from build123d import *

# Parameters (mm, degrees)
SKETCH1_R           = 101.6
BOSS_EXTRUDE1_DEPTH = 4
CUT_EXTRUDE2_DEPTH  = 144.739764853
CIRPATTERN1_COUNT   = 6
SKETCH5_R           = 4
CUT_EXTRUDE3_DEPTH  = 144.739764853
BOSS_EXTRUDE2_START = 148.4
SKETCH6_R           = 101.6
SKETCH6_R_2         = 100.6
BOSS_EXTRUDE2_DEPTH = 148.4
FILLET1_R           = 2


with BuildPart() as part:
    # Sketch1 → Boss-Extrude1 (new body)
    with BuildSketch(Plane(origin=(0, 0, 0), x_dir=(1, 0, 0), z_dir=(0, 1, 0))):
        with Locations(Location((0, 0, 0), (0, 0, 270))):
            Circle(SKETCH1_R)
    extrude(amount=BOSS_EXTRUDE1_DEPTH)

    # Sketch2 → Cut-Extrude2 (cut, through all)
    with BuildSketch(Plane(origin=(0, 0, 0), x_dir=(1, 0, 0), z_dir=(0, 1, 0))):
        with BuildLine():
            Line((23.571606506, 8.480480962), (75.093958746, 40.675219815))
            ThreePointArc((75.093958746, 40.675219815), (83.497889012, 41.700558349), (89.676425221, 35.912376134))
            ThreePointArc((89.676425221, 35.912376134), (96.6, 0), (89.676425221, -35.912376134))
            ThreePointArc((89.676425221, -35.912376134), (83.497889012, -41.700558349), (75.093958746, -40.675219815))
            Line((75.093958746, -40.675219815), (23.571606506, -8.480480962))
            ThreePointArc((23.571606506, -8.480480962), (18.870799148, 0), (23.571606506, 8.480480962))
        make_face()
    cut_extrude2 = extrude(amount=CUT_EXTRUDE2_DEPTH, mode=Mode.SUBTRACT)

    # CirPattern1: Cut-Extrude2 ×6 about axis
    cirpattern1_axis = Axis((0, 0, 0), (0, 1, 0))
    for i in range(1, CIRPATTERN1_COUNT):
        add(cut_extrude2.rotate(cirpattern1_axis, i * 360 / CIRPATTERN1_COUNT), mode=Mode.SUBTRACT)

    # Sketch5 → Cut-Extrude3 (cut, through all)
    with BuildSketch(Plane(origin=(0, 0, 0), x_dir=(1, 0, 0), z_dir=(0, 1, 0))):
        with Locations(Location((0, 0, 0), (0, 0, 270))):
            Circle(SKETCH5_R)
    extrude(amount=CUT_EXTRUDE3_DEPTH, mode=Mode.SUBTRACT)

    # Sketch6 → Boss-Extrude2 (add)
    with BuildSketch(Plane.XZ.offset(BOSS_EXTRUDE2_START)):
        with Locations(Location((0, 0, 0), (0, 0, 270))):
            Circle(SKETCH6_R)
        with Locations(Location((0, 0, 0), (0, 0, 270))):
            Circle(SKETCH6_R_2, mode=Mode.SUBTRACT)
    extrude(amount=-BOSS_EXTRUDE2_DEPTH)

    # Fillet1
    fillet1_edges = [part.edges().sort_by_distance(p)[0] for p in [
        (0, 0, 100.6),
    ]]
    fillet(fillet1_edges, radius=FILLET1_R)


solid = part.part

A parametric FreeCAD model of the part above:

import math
import FreeCAD as App
import Part
import Sketcher
Q = App.Units.Quantity


def edges_at(feature, points):
    """Names of the edges that pass closest to the given points."""
    edges = feature.Shape.Edges
    near = lambda p: min(range(len(edges)), key=lambda i: edges[i].distToShape(Part.Vertex(*p))[0])
    return sorted({f"Edge{near(p) + 1}" for p in points})

doc = App.newDocument("Part")
body = doc.addObject("PartDesign::Body", "Body")

# Sketch on XZ plane
sketch1 = body.newObject("Sketcher::SketchObject", "Sketch")
sketch1.AttachmentSupport = (doc.getObject("XZ_Plane"), [""])
sketch1.MapMode = "FlatFace"
sketch1.addGeometry(Part.Circle(App.Vector(0, 0, 0), App.Vector(0, 0, 1), 101.6), False)
sketch1.addConstraint(Sketcher.Constraint("Coincident", 0, 3, -1, 1))
sketch1.addConstraint(Sketcher.Constraint("Diameter", 0, 203.2))
pad1 = body.newObject("PartDesign::Pad", "Pad")
pad1.Profile = sketch1
pad1.Length = 4
pad1.Reversed = True

# Sketch on XZ plane
sketch2 = body.newObject("Sketcher::SketchObject", "Sketch001")
sketch2.AttachmentSupport = (doc.getObject("XZ_Plane"), [""])
sketch2.MapMode = "FlatFace"
sketch2.addGeometry(Part.LineSegment(App.Vector(75.093959, -40.67522, 0), App.Vector(23.571607, -8.480481, 0)), False)
sketch2.addGeometry(Part.ArcOfCircle(Part.Circle(App.Vector(28.870799, 0, 0), App.Vector(0, 0, 1), 10), math.radians(122), math.radians(238)), False)
sketch2.addGeometry(Part.LineSegment(App.Vector(23.571607, 8.480481, 0), App.Vector(75.093959, 40.67522, 0)), False)
sketch2.addGeometry(Part.ArcOfCircle(Part.Circle(App.Vector(80.393151, 32.194739, 0), App.Vector(0, 0, 1), 10), math.radians(21.824432), math.radians(122)), False)
sketch2.addGeometry(Part.ArcOfCircle(Part.Circle(App.Vector(0, 0, 0), App.Vector(0, 0, 1), 96.6), math.radians(-21.824432), math.radians(21.824432)), False)
sketch2.addGeometry(Part.ArcOfCircle(Part.Circle(App.Vector(80.393151, -32.194739, 0), App.Vector(0, 0, 1), 10), math.radians(-122), math.radians(-21.824432)), False)
sketch2.addConstraint(Sketcher.Constraint("Tangent", 0, 2, 1, 2))
sketch2.addConstraint(Sketcher.Constraint("Tangent", 1, 1, 2, 1))
sketch2.addConstraint(Sketcher.Constraint("Tangent", 2, 2, 3, 2))
sketch2.addConstraint(Sketcher.Constraint("Tangent", 3, 1, 4, 2))
sketch2.addConstraint(Sketcher.Constraint("Tangent", 4, 1, 5, 2))
sketch2.addConstraint(Sketcher.Constraint("Tangent", 5, 1, 0, 1))
sketch2.addConstraint(Sketcher.Constraint("Coincident", 4, 3, -1, 1))
sketch2.addConstraint(Sketcher.Constraint("Equal", 1, 3))
sketch2.addConstraint(Sketcher.Constraint("Equal", 3, 5))
sketch2.addConstraint(Sketcher.Constraint("Symmetric", 0, 2, 1, 1, -1))
sketch2.addConstraint(Sketcher.Constraint("Radius", 1, 10.0))
sketch2.addConstraint(Sketcher.Constraint("Radius", 4, 96.6))
sketch2.addConstraint(Sketcher.Constraint("Angle", 0, Q("148 deg")))
sketch2.addConstraint(Sketcher.Constraint("DistanceX", -1, 1, 1, 3, 28.870799))
pocket1 = body.newObject("PartDesign::Pocket", "Pocket")
pocket1.Profile = sketch2
pocket1.Type = "ThroughAll"
doc.recompute()

polarpattern = body.newObject("PartDesign::PolarPattern", "PolarPattern")
polarpattern.Originals = [pocket1]
polarpattern.Axis = (doc.getObject("Y_Axis"), [""])
polarpattern.Angle = 360
polarpattern.Occurrences = 6
body.Tip = polarpattern

# Sketch on XZ plane
sketch3 = body.newObject("Sketcher::SketchObject", "Sketch002")
sketch3.AttachmentSupport = (doc.getObject("XZ_Plane"), [""])
sketch3.MapMode = "FlatFace"
sketch3.addGeometry(Part.Circle(App.Vector(0, 0, 0), App.Vector(0, 0, 1), 4), False)
sketch3.addConstraint(Sketcher.Constraint("Coincident", 0, 3, -1, 1))
sketch3.addConstraint(Sketcher.Constraint("Diameter", 0, 8.0))
pocket2 = body.newObject("PartDesign::Pocket", "Pocket001")
pocket2.Profile = sketch3
pocket2.Type = "ThroughAll"

# Sketch on XZ plane
sketch4 = body.newObject("Sketcher::SketchObject", "Sketch003")
sketch4.AttachmentSupport = (doc.getObject("XZ_Plane"), [""])
sketch4.MapMode = "FlatFace"
sketch4.AttachmentOffset = App.Placement(App.Vector(0, 0, 148.4), App.Rotation())
sketch4.addGeometry(Part.Circle(App.Vector(0, 0, 0), App.Vector(0, 0, 1), 101.6), False)
sketch4.addGeometry(Part.Circle(App.Vector(0, 0, 0), App.Vector(0, 0, 1), 100.6), False)
sketch4.addConstraint(Sketcher.Constraint("Coincident", 0, 3, -1, 1))
sketch4.addConstraint(Sketcher.Constraint("Coincident", 1, 3, -1, 1))
sketch4.addConstraint(Sketcher.Constraint("Diameter", 0, 203.2))
sketch4.addConstraint(Sketcher.Constraint("Diameter", 1, 201.2))
pad2 = body.newObject("PartDesign::Pad", "Pad001")
pad2.Profile = sketch4
pad2.Length = 148.4
pad2.Reversed = True
doc.recompute()

fillet = body.newObject("PartDesign::Fillet", "Fillet")
fillet.Base = (pad2, edges_at(pad2, [(0, 0, 100.6)]))
fillet.Radius = 2

doc.recompute()
